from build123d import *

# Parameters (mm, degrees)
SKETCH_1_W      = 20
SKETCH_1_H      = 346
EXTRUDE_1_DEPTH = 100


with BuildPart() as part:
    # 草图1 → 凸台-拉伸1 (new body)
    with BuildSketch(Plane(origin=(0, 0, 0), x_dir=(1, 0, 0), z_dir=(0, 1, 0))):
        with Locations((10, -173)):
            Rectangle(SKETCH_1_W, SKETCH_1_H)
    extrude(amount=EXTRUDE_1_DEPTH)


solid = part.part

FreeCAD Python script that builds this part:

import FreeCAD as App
import Part
import Sketcher

doc = App.newDocument("Part")
body = doc.addObject("PartDesign::Body", "Body")

sketch1 = doc.addObject("Sketcher::SketchObject", "Sketch")
body.addObject(sketch1)
sketch1.AttachmentSupport = (doc.XZ_Plane, [""])
sketch1.MapMode = "FlatFace"
sketch1.addGeometry(Part.LineSegment(App.Vector(0, 0, 0), App.Vector(0, 346, 0)), False)
sketch1.addGeometry(Part.LineSegment(App.Vector(0, 346, 0), App.Vector(20, 346, 0)), False)
sketch1.addGeometry(Part.LineSegment(App.Vector(20, 346, 0), App.Vector(20, 0, 0)), False)
sketch1.addGeometry(Part.LineSegment(App.Vector(20, 0, 0), App.Vector(0, 0, 0)), False)
sketch1.addConstraint(Sketcher.Constraint("Coincident", 0, 2, 1, 1))
sketch1.addConstraint(Sketcher.Constraint("Coincident", 1, 2, 2, 1))
sketch1.addConstraint(Sketcher.Constraint("Coincident", 2, 2, 3, 1))
sketch1.addConstraint(Sketcher.Constraint("Coincident", 3, 2, 0, 1))
sketch1.addConstraint(Sketcher.Constraint("Vertical", 0))
sketch1.addConstraint(Sketcher.Constraint("Horizontal", 1))
sketch1.addConstraint(Sketcher.Constraint("Vertical", 2))
sketch1.addConstraint(Sketcher.Constraint("Horizontal", 3))
sketch1.addConstraint(Sketcher.Constraint("Coincident", 3, 2, -1, 1))
sketch1.addConstraint(Sketcher.Constraint("DistanceX", 1, 1, 1, 2, 20.0))
sketch1.addConstraint(Sketcher.Constraint("DistanceY", 0, 1, 0, 2, 346.0))
pad1 = doc.addObject("PartDesign::Pad", "Pad")
body.addObject(pad1)
pad1.Profile = sketch1
pad1.Length = 100
pad1.Reversed = True

doc.recompute()
